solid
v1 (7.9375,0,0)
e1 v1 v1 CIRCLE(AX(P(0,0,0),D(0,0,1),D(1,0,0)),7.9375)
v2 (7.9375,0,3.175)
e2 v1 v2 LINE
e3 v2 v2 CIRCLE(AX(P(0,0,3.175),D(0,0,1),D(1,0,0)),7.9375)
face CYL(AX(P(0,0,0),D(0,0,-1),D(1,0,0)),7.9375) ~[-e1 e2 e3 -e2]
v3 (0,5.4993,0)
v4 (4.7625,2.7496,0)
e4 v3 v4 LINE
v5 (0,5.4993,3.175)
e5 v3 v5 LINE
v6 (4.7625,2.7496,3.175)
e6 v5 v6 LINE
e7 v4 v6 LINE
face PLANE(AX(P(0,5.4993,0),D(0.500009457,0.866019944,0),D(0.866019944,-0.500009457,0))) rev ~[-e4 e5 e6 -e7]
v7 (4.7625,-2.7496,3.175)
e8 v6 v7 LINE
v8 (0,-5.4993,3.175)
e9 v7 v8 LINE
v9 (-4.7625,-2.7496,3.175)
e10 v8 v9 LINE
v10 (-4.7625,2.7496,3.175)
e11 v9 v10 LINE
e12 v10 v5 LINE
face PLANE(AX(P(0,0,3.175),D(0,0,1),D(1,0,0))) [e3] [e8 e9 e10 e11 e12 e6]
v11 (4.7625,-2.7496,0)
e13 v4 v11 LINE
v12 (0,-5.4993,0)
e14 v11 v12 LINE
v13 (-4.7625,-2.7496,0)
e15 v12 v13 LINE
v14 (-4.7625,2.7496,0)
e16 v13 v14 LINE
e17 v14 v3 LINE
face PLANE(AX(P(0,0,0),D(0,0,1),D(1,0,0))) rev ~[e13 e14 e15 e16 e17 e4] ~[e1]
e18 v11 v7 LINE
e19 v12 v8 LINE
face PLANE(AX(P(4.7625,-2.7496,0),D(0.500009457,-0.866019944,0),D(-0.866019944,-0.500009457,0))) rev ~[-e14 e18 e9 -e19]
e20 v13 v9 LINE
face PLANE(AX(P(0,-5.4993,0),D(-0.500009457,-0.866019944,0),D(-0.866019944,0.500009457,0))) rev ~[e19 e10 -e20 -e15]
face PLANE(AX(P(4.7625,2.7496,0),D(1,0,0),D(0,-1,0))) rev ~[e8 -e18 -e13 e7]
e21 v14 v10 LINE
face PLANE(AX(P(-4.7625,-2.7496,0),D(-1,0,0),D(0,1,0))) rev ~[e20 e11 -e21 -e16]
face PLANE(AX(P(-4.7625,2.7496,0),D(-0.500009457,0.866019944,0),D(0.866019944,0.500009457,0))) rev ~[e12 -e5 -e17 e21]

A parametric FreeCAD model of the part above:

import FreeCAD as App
import Part
import Sketcher
from FreeCAD import Vector
Q = App.Units.Quantity


def add_polygon(sketch, points):
    """Adds a closed chain of lines whose ends are joined by coincident constraints."""
    first, n = sketch.GeometryCount, len(points)
    for a, b in zip(points, points[1:] + points[:1]):
        sketch.addGeometry(Part.LineSegment(App.Vector(*a, 0), App.Vector(*b, 0)), False)
    for i in range(n):
        sketch.addConstraint(Sketcher.Constraint("Coincident", first + i, 2, first + (i + 1) % n, 1))

doc = App.newDocument("Part")
body = doc.addObject("PartDesign::Body", "Body")

# Sketch on XY plane
sketch1 = body.newObject("Sketcher::SketchObject", "Sketch")
sketch1.AttachmentSupport = (doc.getObject("XY_Plane"), [""])
sketch1.MapMode = "FlatFace"
sketch1.addGeometry(Part.Circle(Vector(0, 0, 0), Vector(0, 0, 1), 7.9375), False)  # 0
add_polygon(sketch1, [(-4.7625, 2.7496), (0, 5.4993), (4.7625, 2.7496), (4.7625, -2.7496), (0, -5.4993), (-4.7625, -2.7496)])  # lines 1-6
sketch1.addConstraint(Sketcher.Constraint("Vertical", 3))
sketch1.addConstraint(Sketcher.Constraint("Vertical", 6))
sketch1.addConstraint(Sketcher.Constraint("Coincident", 0, 3, -1, 1))
sketch1.addConstraint(Sketcher.Constraint("Symmetric", 1, 2, 4, 2, -1, 1))
sketch1.addConstraint(Sketcher.Constraint("Symmetric", 2, 2, 5, 2, -1, 1))
sketch1.addConstraint(Sketcher.Constraint("PointOnObject", 1, 2, -2))
sketch1.addConstraint(Sketcher.Constraint("Parallel", 1, 4))
sketch1.addConstraint(Sketcher.Constraint("Horizontal", 3, 2, 5, 2))
sketch1.addConstraint(Sketcher.Constraint("Diameter", 0, Q("0.625 in")))
sketch1.addConstraint(Sketcher.Constraint("Angle", 1, Q("30.0006 deg")))
sketch1.addConstraint(Sketcher.Constraint("DistanceX", 5, 2, 3, 2, Q("0.375 in")))
sketch1.addConstraint(Sketcher.Constraint("DistanceY", 3, 2, 3, 1, Q("0.2165 in")))
pad1 = body.newObject("PartDesign::Pad", "Pad")
pad1.Profile = sketch1
pad1.Length = Q("0.125 in")

doc.recompute()
